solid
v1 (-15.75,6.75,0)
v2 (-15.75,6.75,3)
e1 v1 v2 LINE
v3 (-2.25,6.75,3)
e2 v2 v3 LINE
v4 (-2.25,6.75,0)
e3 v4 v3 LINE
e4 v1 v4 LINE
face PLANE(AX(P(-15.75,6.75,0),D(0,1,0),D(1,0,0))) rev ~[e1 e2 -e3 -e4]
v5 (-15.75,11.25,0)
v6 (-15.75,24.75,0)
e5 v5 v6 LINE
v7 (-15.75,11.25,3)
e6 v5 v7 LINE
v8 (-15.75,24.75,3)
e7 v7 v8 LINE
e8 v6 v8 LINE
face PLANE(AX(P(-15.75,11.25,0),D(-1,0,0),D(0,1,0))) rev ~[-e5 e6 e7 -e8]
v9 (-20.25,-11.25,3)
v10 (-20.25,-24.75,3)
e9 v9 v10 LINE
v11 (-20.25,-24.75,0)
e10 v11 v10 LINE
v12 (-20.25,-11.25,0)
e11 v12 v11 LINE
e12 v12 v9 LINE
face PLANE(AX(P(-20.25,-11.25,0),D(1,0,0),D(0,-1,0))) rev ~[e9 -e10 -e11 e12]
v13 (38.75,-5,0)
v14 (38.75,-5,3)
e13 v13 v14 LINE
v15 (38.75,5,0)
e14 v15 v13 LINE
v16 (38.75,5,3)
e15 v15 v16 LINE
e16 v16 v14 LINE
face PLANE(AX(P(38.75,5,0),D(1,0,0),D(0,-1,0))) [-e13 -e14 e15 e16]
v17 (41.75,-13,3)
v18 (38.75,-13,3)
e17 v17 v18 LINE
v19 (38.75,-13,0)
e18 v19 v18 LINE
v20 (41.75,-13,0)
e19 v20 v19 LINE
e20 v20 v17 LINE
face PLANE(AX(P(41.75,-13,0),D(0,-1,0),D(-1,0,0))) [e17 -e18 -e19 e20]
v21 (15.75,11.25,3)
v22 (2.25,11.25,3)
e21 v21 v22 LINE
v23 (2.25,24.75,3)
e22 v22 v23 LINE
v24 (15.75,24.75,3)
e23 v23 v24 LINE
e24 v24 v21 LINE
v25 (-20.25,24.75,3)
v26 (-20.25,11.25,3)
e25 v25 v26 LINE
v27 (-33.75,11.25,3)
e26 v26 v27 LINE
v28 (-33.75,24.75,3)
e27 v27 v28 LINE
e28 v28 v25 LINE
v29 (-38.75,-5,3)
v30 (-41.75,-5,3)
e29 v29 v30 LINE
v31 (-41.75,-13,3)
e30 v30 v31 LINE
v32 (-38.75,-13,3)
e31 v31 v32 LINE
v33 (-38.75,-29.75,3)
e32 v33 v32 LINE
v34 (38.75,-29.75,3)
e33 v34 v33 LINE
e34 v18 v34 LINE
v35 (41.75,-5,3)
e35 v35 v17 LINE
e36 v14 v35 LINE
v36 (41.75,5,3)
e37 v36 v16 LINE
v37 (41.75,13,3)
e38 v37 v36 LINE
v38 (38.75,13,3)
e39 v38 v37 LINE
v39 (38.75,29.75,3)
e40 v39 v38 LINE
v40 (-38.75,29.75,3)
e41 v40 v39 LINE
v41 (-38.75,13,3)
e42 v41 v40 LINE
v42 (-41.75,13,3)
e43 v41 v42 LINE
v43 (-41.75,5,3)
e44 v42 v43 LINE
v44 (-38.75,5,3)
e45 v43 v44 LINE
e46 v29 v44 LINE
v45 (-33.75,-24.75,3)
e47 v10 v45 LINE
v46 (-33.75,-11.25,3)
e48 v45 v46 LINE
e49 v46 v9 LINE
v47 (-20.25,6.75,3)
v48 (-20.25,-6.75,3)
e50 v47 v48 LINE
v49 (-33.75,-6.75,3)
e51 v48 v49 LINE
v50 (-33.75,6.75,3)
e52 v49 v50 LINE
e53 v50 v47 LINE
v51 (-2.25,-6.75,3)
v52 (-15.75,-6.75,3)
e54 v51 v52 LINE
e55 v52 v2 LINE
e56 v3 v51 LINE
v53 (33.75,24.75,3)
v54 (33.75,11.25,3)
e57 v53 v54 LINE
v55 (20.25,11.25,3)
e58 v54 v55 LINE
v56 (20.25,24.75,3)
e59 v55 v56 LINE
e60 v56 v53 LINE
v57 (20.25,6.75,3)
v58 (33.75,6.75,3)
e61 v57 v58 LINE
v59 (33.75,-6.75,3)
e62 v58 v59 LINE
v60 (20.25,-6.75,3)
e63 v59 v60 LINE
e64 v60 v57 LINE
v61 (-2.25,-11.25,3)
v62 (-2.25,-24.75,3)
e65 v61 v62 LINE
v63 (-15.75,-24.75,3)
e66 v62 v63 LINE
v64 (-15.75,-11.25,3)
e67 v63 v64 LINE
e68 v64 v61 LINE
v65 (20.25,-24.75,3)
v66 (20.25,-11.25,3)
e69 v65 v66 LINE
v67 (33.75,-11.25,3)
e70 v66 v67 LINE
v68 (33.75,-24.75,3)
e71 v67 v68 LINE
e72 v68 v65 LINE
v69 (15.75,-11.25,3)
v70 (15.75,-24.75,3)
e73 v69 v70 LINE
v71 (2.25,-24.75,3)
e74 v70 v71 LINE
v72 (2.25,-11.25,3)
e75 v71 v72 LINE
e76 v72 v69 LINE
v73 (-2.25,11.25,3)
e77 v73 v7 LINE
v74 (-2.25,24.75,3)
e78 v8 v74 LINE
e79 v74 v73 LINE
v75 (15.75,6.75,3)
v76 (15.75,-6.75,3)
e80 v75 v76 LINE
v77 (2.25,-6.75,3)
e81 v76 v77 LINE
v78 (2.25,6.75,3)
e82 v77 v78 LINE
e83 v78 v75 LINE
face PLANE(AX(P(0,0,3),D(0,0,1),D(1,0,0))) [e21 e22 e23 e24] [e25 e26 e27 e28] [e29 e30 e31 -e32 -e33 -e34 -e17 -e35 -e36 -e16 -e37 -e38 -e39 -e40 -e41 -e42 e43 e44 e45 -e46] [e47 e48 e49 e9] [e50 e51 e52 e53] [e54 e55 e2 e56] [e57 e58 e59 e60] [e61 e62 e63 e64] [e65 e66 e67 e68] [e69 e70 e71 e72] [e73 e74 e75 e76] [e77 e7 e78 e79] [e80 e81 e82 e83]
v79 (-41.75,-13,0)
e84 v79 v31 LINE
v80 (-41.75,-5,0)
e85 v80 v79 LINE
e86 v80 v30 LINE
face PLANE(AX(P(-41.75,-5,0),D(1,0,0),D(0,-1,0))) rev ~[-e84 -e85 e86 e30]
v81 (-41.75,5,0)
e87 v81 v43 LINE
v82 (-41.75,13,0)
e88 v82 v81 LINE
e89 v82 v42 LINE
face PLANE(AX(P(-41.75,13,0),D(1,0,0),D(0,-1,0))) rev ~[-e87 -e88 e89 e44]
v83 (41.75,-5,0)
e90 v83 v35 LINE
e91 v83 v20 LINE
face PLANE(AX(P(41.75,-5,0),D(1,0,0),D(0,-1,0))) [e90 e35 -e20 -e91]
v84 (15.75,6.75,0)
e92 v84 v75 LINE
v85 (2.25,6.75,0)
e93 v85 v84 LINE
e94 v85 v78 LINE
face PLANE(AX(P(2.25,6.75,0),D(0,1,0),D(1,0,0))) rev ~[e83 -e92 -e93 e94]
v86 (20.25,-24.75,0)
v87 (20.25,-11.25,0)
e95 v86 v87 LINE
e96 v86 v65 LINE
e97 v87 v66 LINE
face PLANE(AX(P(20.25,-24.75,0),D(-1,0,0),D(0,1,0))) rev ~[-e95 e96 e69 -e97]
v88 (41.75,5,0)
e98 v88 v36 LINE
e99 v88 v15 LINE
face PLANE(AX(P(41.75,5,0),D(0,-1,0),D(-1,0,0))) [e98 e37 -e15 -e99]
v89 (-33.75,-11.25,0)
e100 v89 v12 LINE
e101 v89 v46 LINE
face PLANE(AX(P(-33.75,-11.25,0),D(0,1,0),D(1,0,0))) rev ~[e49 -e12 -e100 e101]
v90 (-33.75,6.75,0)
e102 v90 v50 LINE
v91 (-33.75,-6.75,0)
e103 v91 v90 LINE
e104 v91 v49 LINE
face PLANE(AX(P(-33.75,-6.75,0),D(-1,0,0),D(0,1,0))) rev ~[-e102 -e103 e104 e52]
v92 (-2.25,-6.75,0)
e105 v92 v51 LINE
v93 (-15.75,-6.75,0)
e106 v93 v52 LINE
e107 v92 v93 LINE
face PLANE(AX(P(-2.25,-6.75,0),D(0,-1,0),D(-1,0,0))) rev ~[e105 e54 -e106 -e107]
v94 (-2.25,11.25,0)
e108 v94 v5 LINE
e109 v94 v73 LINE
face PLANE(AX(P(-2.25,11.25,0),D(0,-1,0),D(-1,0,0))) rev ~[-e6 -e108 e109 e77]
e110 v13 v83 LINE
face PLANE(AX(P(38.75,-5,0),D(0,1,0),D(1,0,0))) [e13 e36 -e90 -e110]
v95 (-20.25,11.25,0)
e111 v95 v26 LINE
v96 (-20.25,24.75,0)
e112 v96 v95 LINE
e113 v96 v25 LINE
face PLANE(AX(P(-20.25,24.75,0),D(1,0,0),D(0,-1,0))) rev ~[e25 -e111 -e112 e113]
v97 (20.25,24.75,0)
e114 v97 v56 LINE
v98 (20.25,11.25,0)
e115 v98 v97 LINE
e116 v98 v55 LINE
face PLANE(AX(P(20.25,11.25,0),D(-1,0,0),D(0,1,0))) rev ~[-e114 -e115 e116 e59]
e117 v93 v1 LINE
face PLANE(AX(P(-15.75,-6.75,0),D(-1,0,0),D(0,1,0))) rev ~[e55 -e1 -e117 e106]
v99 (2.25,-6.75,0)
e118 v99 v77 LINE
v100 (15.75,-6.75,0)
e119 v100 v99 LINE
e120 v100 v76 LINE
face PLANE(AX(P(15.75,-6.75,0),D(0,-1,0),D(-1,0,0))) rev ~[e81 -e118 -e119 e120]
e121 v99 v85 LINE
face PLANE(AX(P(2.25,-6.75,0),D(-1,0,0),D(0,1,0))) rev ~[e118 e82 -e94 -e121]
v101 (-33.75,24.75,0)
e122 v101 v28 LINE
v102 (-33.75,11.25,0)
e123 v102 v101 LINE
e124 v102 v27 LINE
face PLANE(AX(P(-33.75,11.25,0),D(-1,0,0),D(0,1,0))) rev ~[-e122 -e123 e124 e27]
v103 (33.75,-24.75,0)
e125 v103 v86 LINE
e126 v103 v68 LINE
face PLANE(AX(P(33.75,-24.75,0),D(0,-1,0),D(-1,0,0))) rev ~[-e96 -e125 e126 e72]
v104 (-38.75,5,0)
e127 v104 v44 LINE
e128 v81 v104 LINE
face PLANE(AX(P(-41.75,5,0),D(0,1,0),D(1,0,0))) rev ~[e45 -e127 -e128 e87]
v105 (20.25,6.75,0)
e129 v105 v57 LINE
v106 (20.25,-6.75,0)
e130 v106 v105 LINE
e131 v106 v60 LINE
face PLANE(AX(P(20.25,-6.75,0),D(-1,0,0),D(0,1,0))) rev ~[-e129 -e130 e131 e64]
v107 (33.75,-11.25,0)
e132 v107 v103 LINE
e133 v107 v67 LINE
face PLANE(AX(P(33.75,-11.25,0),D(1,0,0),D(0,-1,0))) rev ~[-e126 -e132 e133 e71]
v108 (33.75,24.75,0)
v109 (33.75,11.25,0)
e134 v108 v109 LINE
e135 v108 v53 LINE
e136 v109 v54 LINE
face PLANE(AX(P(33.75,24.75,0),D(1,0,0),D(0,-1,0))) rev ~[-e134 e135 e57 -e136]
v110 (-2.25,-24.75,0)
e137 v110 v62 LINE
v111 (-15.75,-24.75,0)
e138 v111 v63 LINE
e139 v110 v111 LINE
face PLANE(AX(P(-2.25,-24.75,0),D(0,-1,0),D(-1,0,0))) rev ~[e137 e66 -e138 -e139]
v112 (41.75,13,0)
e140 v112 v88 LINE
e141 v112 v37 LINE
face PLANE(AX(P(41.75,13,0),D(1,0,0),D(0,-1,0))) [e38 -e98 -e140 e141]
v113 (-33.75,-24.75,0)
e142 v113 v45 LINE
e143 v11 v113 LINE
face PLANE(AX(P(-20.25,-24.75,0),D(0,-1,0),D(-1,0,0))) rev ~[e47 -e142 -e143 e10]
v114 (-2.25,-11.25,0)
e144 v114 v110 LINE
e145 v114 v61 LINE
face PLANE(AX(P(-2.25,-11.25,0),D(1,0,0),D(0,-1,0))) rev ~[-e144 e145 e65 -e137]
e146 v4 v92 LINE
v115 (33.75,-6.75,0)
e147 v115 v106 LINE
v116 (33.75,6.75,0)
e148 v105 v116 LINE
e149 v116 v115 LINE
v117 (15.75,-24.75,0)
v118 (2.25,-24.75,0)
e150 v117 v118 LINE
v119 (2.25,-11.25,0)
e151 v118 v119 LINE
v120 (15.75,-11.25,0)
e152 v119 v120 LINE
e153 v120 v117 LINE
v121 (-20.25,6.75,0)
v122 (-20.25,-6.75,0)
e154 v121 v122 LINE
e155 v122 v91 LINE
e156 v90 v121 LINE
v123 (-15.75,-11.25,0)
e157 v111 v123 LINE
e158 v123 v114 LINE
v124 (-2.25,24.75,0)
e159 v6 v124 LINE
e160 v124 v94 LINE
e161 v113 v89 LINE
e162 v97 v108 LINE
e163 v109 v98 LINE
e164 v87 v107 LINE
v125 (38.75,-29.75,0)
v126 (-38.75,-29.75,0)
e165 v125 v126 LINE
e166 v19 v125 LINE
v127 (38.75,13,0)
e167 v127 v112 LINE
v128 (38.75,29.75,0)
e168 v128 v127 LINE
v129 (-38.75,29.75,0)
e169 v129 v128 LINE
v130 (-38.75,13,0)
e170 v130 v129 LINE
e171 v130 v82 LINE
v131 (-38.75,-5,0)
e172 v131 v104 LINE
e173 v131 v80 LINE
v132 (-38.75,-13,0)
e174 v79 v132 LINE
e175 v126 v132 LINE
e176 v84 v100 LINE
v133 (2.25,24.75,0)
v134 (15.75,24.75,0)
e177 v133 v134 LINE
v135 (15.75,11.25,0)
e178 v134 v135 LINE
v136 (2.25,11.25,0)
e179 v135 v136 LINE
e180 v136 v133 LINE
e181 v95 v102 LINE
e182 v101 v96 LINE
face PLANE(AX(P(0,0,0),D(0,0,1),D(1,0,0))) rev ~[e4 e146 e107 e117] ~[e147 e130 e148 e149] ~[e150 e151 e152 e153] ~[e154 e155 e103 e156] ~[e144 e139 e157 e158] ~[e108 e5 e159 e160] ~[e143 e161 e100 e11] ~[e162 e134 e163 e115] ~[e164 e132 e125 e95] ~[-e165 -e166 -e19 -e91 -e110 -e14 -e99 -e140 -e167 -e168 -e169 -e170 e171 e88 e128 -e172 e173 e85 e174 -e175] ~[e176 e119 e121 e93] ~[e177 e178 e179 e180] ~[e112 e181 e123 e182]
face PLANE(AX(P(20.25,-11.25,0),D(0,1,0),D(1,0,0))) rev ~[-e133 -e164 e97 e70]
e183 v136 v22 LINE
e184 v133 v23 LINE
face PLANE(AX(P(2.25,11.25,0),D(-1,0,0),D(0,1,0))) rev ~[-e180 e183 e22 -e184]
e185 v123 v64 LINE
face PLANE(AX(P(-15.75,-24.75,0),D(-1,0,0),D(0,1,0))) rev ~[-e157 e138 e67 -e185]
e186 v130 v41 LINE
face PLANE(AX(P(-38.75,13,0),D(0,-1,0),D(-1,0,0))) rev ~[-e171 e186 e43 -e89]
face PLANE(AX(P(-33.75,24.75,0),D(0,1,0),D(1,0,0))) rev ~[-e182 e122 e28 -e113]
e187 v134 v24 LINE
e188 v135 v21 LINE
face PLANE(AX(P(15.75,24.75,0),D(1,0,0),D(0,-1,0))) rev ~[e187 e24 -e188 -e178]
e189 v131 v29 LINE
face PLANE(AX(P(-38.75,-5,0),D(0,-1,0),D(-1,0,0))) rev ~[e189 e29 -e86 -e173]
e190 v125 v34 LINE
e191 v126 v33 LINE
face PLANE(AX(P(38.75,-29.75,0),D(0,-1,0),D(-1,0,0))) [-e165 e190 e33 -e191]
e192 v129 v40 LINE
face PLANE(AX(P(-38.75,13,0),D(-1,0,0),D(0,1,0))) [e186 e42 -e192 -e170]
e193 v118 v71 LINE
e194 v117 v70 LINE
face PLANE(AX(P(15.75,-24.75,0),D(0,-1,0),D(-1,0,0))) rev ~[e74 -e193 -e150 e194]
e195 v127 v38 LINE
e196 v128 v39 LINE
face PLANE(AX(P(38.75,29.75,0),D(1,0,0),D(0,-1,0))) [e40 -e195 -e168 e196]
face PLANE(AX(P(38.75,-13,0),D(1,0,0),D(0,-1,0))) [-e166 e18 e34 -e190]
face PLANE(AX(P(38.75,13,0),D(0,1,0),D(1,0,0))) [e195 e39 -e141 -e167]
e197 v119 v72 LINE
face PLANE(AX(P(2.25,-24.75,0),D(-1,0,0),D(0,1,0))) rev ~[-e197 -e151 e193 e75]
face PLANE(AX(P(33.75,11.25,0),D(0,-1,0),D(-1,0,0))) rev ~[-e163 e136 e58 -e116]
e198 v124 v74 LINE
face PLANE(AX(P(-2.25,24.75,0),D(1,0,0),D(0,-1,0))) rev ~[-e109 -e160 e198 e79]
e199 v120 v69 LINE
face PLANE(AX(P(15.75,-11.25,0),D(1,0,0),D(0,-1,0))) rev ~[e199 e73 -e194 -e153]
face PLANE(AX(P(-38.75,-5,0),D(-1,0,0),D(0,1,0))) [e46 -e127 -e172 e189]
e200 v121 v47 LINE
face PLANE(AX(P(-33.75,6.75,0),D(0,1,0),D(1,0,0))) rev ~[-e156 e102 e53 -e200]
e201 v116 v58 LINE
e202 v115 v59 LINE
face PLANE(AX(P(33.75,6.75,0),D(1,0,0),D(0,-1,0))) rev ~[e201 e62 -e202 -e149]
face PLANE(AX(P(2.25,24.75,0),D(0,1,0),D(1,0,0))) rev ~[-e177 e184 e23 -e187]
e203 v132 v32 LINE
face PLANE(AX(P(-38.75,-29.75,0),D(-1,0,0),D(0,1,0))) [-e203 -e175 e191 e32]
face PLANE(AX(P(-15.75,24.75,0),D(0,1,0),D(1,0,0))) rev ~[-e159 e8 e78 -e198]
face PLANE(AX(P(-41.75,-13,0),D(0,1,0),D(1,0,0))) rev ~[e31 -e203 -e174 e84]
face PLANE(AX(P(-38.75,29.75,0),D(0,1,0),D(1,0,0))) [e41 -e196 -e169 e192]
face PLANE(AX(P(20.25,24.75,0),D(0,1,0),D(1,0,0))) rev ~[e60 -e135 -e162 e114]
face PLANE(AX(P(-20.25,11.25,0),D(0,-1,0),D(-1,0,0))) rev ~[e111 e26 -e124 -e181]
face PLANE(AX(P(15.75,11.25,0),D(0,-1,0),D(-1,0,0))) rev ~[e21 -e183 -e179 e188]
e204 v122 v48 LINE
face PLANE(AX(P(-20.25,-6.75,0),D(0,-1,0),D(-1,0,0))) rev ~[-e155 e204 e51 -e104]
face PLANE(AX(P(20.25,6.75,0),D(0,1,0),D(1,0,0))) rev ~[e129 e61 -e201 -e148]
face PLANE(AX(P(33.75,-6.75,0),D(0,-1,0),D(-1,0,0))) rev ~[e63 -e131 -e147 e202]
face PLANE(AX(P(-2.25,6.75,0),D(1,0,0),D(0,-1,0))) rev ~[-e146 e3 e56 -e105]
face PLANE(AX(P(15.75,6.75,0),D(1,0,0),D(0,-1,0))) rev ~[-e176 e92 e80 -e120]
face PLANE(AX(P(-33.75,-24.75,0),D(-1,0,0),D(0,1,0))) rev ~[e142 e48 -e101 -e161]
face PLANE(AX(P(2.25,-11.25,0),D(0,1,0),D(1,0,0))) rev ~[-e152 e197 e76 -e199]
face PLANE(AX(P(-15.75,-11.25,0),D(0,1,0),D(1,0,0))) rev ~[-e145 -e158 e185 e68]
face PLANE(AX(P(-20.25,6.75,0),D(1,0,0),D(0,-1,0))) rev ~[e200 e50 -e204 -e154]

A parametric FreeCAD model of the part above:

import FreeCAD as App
import Part
import Sketcher

V = App.Vector


def add_polygon(sketch, points):
    """Adds a closed chain of lines whose ends are joined by coincident constraints."""
    first, n = sketch.GeometryCount, len(points)
    for a, b in zip(points, points[1:] + points[:1]):
        sketch.addGeometry(Part.LineSegment(App.Vector(*a, 0), App.Vector(*b, 0)), False)
    for i in range(n):
        sketch.addConstraint(Sketcher.Constraint("Coincident", first + i, 2, first + (i + 1) % n, 1))

doc = App.newDocument("Part")
body = doc.addObject("PartDesign::Body", "Body")

sketch1 = body.newObject("Sketcher::SketchObject", "Sketch")
sketch1.AttachmentSupport = (doc.getObject("XY_Plane"), [""])
sketch1.MapMode = "FlatFace"
add_polygon(sketch1, [(38.8, 29.8), (-38.8, 29.8), (-38.8, 13), (-41.8, 13), (-41.8, 5), (-38.8, 5), (-38.8, -5), (-41.8, -5), (-41.8, -13), (-38.8, -13), (-38.8, -29.8), (38.8, -29.8), (38.8, -13), (41.8, -13), (41.8, -5), (38.8, -5), (38.8, 5), (41.8, 5), (41.8, 13), (38.8, 13)])
add_polygon(sketch1, [(-33.8, -11.2), (-20.2, -11.2), (-20.2, -24.8), (-33.8, -24.8)])
add_polygon(sketch1, [(-15.8, -11.2), (-2.2, -11.2), (-2.2, -24.8), (-15.8, -24.8)])
add_polygon(sketch1, [(2.2, -11.2), (15.8, -11.2), (15.8, -24.8), (2.2, -24.8)])
add_polygon(sketch1, [(20.2, -11.2), (33.8, -11.2), (33.8, -24.8), (20.2, -24.8)])
add_polygon(sketch1, [(-33.8, 6.8), (-20.2, 6.8), (-20.2, -6.8), (-33.8, -6.8)])
add_polygon(sketch1, [(-15.8, 6.8), (-2.2, 6.8), (-2.2, -6.8), (-15.8, -6.8)])
add_polygon(sketch1, [(-33.8, 11.2), (-33.8, 24.8), (-20.2, 24.8), (-20.2, 11.2)])
add_polygon(sketch1, [(-15.8, 24.8), (-2.2, 24.8), (-2.2, 11.2), (-15.8, 11.2)])
add_polygon(sketch1, [(2.2, 6.8), (15.8, 6.8), (15.8, -6.8), (2.2, -6.8)])
add_polygon(sketch1, [(20.2, 6.8), (33.8, 6.8), (33.8, -6.8), (20.2, -6.8)])
add_polygon(sketch1, [(2.2, 24.8), (15.8, 24.8), (15.8, 11.2), (2.2, 11.2)])
add_polygon(sketch1, [(20.2, 24.8), (33.8, 24.8), (33.8, 11.2), (20.2, 11.2)])
sketch1.addConstraint([
    Sketcher.Constraint("Horizontal", 0),
    Sketcher.Constraint("Vertical", 1),
    Sketcher.Constraint("Horizontal", 2),
    Sketcher.Constraint("Vertical", 3),
    Sketcher.Constraint("Horizontal", 4),
    Sketcher.Constraint("Vertical", 5),
    Sketcher.Constraint("Horizontal", 6),
    Sketcher.Constraint("Vertical", 7),
    Sketcher.Constraint("Horizontal", 8),
    Sketcher.Constraint("Vertical", 9),
    Sketcher.Constraint("Horizontal", 10),
    Sketcher.Constraint("Vertical", 11),
    Sketcher.Constraint("Horizontal", 12),
    Sketcher.Constraint("Vertical", 13),
    Sketcher.Constraint("Horizontal", 14),
    Sketcher.Constraint("Vertical", 15),
    Sketcher.Constraint("Horizontal", 16),
    Sketcher.Constraint("Vertical", 17),
    Sketcher.Constraint("Horizontal", 18),
    Sketcher.Constraint("Vertical", 19),
    Sketcher.Constraint("Horizontal", 20),
    Sketcher.Constraint("Vertical", 21),
    Sketcher.Constraint("Horizontal", 22),
    Sketcher.Constraint("Vertical", 23),
    Sketcher.Constraint("Horizontal", 24),
    Sketcher.Constraint("Vertical", 25),
    Sketcher.Constraint("Horizontal", 26),
    Sketcher.Constraint("Vertical", 27),
    Sketcher.Constraint("Horizontal", 28),
    Sketcher.Constraint("Vertical", 29),
    Sketcher.Constraint("Horizontal", 30),
    Sketcher.Constraint("Vertical", 31),
    Sketcher.Constraint("Horizontal", 32),
    Sketcher.Constraint("Vertical", 33),
    Sketcher.Constraint("Horizontal", 34),
    Sketcher.Constraint("Vertical", 35),
    Sketcher.Constraint("Horizontal", 36),
    Sketcher.Constraint("Vertical", 37),
    Sketcher.Constraint("Horizontal", 38),
    Sketcher.Constraint("Vertical", 39),
    Sketcher.Constraint("Horizontal", 40),
    Sketcher.Constraint("Vertical", 41),
    Sketcher.Constraint("Horizontal", 42),
    Sketcher.Constraint("Vertical", 43),
    Sketcher.Constraint("Vertical", 44),
    Sketcher.Constraint("Horizontal", 45),
    Sketcher.Constraint("Vertical", 46),
    Sketcher.Constraint("Horizontal", 47),
    Sketcher.Constraint("Horizontal", 48),
    Sketcher.Constraint("Vertical", 49),
    Sketcher.Constraint("Horizontal", 50),
    Sketcher.Constraint("Vertical", 51),
    Sketcher.Constraint("Horizontal", 52),
    Sketcher.Constraint("Vertical", 53),
    Sketcher.Constraint("Horizontal", 54),
    Sketcher.Constraint("Vertical", 55),
    Sketcher.Constraint("Horizontal", 56),
    Sketcher.Constraint("Vertical", 57),
    Sketcher.Constraint("Horizontal", 58),
    Sketcher.Constraint("Vertical", 59),
    Sketcher.Constraint("Horizontal", 60),
    Sketcher.Constraint("Vertical", 61),
    Sketcher.Constraint("Horizontal", 62),
    Sketcher.Constraint("Vertical", 63),
    Sketcher.Constraint("Horizontal", 64),
    Sketcher.Constraint("Vertical", 65),
    Sketcher.Constraint("Horizontal", 66),
    Sketcher.Constraint("Vertical", 67),
    Sketcher.Constraint("Symmetric", 0, 2, 10, 2, -1, 1),
    Sketcher.Constraint("Symmetric", 2, 2, 12, 2, -1, 1),
    Sketcher.Constraint("Symmetric", 4, 2, 14, 2, -1, 1),
    Sketcher.Constraint("Symmetric", 6, 2, 16, 2, -1, 1),
    Sketcher.Constraint("Symmetric", 8, 2, 18, 2, -1, 1),
    Sketcher.Constraint("Symmetric", 33, 2, 44, 2, -1, 1),
    Sketcher.Constraint("Symmetric", 35, 2, 46, 2, -1, 1),
    Sketcher.Constraint("Symmetric", 30, 2, 48, 2, -1, 1),
    Sketcher.Constraint("Symmetric", 28, 2, 50, 2, -1, 1),
    Sketcher.Constraint("Symmetric", 42, 2, 52, 2, -1, 1),
    Sketcher.Constraint("Symmetric", 40, 2, 54, 2, -1, 1),
    Sketcher.Constraint("Symmetric", 38, 2, 56, 2, -1, 1),
    Sketcher.Constraint("Symmetric", 36, 2, 58, 2, -1, 1),
    Sketcher.Constraint("Symmetric", 26, 2, 60, 2, -1, 1),
    Sketcher.Constraint("Symmetric", 24, 2, 62, 2, -1, 1),
    Sketcher.Constraint("Symmetric", 22, 2, 64, 2, -1, 1),
    Sketcher.Constraint("Symmetric", 20, 2, 66, 2, -1, 1),
    Sketcher.Constraint("Symmetric", 8, 2, 11, 2, -2),
    Sketcher.Constraint("Symmetric", 6, 2, 13, 2, -2),
    Sketcher.Constraint("Symmetric", 27, 2, 28, 2, -2),
    Sketcher.Constraint("Symmetric", 25, 2, 30, 2, -2),
    Sketcher.Constraint("Symmetric", 23, 2, 32, 2, -2),
    Sketcher.Constraint("Symmetric", 21, 2, 34, 2, -2),
    Sketcher.Constraint("Horizontal", 23, 2, 24, 2),
    Sketcher.Constraint("Horizontal", 22, 2, 25, 2),
    Sketcher.Constraint("Horizontal", 39, 2, 40, 2),
    Sketcher.Constraint("Horizontal", 38, 2, 41, 2),
    Sketcher.Constraint("Horizontal", 43, 2, 52, 2),
    Sketcher.Constraint("Vertical", 1, 2, 4, 2),
    Sketcher.Constraint("Vertical", 21, 2, 36, 2),
    Sketcher.Constraint("Vertical", 23, 2, 38, 2),
    Sketcher.Constraint("Vertical", 25, 2, 40, 2),
    Sketcher.Constraint("Vertical", 27, 2, 42, 2),
    Sketcher.Constraint("Equal", 22, 24),
    Sketcher.Constraint("Equal", 66, 21),
    Sketcher.Constraint("Equal", 35, 37),
    Sketcher.Constraint("DistanceX", 2, 2, 2, 1, 3.0),
    Sketcher.Constraint("DistanceY", 3, 2, 3, 1, 8.0),
    Sketcher.Constraint("DistanceX", 20, 1, 20, 2, 13.5),
    Sketcher.Constraint("DistanceY", -1, 1, 3, 2, 5.0),
    Sketcher.Constraint("DistanceX", 0, 2, 0, 1, 77.5),
    Sketcher.Constraint("DistanceY", 1, 2, 1, 1, 16.75),
    Sketcher.Constraint("DistanceX", 20, 2, -1, 1, 20.25),
    Sketcher.Constraint("DistanceY", 20, 2, -1, 1, 11.25),
    Sketcher.Constraint("DistanceX", 24, 2, -1, 1, 2.25),
])
pad1 = body.newObject("PartDesign::Pad", "Pad")
pad1.Profile = sketch1
pad1.Length = 3

doc.recompute()
